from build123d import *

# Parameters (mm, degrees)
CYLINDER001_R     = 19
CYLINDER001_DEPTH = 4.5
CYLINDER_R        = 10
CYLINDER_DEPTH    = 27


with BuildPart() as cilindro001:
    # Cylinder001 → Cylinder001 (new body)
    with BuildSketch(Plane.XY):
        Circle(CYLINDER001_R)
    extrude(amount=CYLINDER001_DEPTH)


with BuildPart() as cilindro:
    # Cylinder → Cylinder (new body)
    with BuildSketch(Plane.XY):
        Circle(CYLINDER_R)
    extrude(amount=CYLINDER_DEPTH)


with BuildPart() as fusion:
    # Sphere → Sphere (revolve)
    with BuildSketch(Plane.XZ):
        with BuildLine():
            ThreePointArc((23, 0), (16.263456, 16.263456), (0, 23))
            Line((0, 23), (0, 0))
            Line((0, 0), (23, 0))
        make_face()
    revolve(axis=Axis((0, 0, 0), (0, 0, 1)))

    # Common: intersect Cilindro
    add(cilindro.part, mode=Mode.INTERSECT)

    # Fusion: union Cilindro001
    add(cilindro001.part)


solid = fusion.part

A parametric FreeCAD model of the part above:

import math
import FreeCAD as App
import Part
import Sketcher
Q = App.Units.Quantity

doc = App.newDocument("Part")
body = doc.addObject("PartDesign::Body", "Body")

sketch1 = doc.addObject("Sketcher::SketchObject", "Sketch")
body.addObject(sketch1)
sketch1.AttachmentSupport = (doc.XY_Plane, [""])
sketch1.MapMode = "FlatFace"
sketch1.addGeometry(Part.Circle(App.Vector(0, 0, 0), App.Vector(0, 0, 1), 19), False)
sketch1.addConstraint([
    Sketcher.Constraint("Coincident", 0, 3, -1, 1),
    Sketcher.Constraint("Diameter", 0, Q("38 mm")),
])
pad1 = doc.addObject("PartDesign::Pad", "Pad")
body.addObject(pad1)
pad1.Profile = sketch1
pad1.Length = 4.5
body2 = doc.addObject("PartDesign::Body", "Body001")

sketch2 = doc.addObject("Sketcher::SketchObject", "Sketch001")
body2.addObject(sketch2)
sketch2.AttachmentSupport = (doc.getObject("XY_Plane001"), [""])
sketch2.MapMode = "FlatFace"
sketch2.addGeometry(Part.Circle(App.Vector(0, 0, 0), App.Vector(0, 0, 1), 10), False)
sketch2.addConstraint([
    Sketcher.Constraint("Coincident", 0, 3, -1, 1),
    Sketcher.Constraint("Diameter", 0, Q("20 mm")),
])
pad2 = doc.addObject("PartDesign::Pad", "Pad001")
body2.addObject(pad2)
pad2.Profile = sketch2
pad2.Length = 27
body3 = doc.addObject("PartDesign::Body", "Body002")

sketch3 = doc.addObject("Sketcher::SketchObject", "Sketch002")
body3.addObject(sketch3)
sketch3.AttachmentSupport = (doc.getObject("XZ_Plane002"), [""])
sketch3.MapMode = "FlatFace"
sketch3.addGeometry([
    Part.ArcOfCircle(Part.Circle(App.Vector(0, 0, 0), App.Vector(0, 0, 1), 23), math.radians(0), math.radians(90)),
    Part.LineSegment(App.Vector(0, 23, 0), App.Vector(0, 0, 0)),
    Part.LineSegment(App.Vector(0, 0, 0), App.Vector(23, 0, 0)),
], False)
sketch3.addConstraint([
    Sketcher.Constraint("Coincident", 0, 2, 1, 1),
    Sketcher.Constraint("Coincident", 1, 2, 2, 1),
    Sketcher.Constraint("Coincident", 2, 2, 0, 1),
    Sketcher.Constraint("Vertical", 1),
    Sketcher.Constraint("Horizontal", 2),
    Sketcher.Constraint("Coincident", 0, 3, -1, 1),
    Sketcher.Constraint("Coincident", 1, 2, -1, 1),
    Sketcher.Constraint("Radius", 0, Q("23 mm")),
])
revolution = doc.addObject("PartDesign::Revolution", "Revolution")
body3.addObject(revolution)
revolution.Profile = sketch3
revolution.ReferenceAxis = (sketch3, ["V_Axis"])
revolution.Angle = 360
doc.recompute()

boolean = doc.addObject("PartDesign::Boolean", "Boolean")
body3.addObject(boolean)
boolean.Type = "Common"
boolean.addObjects([body2])
doc.recompute()

boolean2 = doc.addObject("PartDesign::Boolean", "Boolean001")
body3.addObject(boolean2)
boolean2.Type = "Fuse"
boolean2.addObjects([body])

doc.recompute()
